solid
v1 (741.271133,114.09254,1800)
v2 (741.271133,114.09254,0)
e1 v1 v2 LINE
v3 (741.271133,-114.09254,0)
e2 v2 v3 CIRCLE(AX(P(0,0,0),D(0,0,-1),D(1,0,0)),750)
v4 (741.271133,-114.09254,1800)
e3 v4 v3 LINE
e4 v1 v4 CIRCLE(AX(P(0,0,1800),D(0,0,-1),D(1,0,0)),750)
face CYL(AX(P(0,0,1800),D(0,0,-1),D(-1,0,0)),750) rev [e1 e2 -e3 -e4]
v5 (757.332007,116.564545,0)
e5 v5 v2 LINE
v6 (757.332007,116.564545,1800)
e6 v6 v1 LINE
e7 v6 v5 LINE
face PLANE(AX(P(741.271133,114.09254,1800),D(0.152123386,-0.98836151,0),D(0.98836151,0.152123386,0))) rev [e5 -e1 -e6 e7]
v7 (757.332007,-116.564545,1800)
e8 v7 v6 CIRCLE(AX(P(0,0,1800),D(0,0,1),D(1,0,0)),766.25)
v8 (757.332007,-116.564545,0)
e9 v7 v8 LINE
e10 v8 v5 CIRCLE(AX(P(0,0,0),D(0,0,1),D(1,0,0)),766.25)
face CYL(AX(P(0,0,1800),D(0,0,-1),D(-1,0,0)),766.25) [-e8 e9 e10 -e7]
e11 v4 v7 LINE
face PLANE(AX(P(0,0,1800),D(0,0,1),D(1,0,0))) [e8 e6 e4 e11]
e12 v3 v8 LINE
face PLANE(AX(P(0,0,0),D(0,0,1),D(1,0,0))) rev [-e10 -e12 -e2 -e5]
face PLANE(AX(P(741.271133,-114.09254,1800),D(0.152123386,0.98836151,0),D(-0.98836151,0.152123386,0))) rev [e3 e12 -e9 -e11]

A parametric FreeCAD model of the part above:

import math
import FreeCAD as App
import Part
import Sketcher
Q = App.Units.Quantity

doc = App.newDocument("Part")
body = doc.addObject("PartDesign::Body", "Body")

# Sketch on XY plane
sketch1 = body.newObject("Sketcher::SketchObject", "Sketch")
sketch1.AttachmentSupport = (doc.getObject("XY_Plane"), [""])
sketch1.MapMode = "FlatFace"
sketch1.addGeometry(Part.LineSegment(App.Vector(757.332007, 116.564545, 0), App.Vector(741.271133, 114.09254, 0)), False)
sketch1.addGeometry(Part.ArcOfCircle(Part.Circle(App.Vector(0, 0, 0), App.Vector(0, 0, 1), 750), math.radians(-8.75), math.radians(8.75)), False)
sketch1.addGeometry(Part.LineSegment(App.Vector(741.271133, -114.09254, 0), App.Vector(757.332007, -116.564545, 0)), False)
sketch1.addGeometry(Part.ArcOfCircle(Part.Circle(App.Vector(0, 0, 0), App.Vector(0, 0, 1), 766.25), math.radians(-8.75), math.radians(8.75)), False)
sketch1.addConstraint(Sketcher.Constraint("Coincident", 0, 2, 1, 2))
sketch1.addConstraint(Sketcher.Constraint("Coincident", 1, 1, 2, 1))
sketch1.addConstraint(Sketcher.Constraint("Coincident", 2, 2, 3, 1))
sketch1.addConstraint(Sketcher.Constraint("Coincident", 3, 2, 0, 1))
sketch1.addConstraint(Sketcher.Constraint("Coincident", 1, 3, -1, 1))
sketch1.addConstraint(Sketcher.Constraint("Coincident", 3, 3, -1, 1))
sketch1.addConstraint(Sketcher.Constraint("Radius", 1, Q("750 mm")))
sketch1.addConstraint(Sketcher.Constraint("Radius", 3, Q("766.25 mm")))
sketch1.addConstraint(Sketcher.Constraint("Angle", 0, Q("-171.25 deg")))
sketch1.addConstraint(Sketcher.Constraint("Angle", 2, Q("-8.75 deg")))
sketch1.addConstraint(Sketcher.Constraint("DistanceY", -1, 1, 0, 2, Q("114.09254 mm")))
sketch1.addConstraint(Sketcher.Constraint("DistanceX", -1, 1, 2, 2, Q("757.332007 mm")))
pad1 = body.newObject("PartDesign::Pad", "Pad")
pad1.Profile = sketch1
pad1.Length = 1800

doc.recompute()
